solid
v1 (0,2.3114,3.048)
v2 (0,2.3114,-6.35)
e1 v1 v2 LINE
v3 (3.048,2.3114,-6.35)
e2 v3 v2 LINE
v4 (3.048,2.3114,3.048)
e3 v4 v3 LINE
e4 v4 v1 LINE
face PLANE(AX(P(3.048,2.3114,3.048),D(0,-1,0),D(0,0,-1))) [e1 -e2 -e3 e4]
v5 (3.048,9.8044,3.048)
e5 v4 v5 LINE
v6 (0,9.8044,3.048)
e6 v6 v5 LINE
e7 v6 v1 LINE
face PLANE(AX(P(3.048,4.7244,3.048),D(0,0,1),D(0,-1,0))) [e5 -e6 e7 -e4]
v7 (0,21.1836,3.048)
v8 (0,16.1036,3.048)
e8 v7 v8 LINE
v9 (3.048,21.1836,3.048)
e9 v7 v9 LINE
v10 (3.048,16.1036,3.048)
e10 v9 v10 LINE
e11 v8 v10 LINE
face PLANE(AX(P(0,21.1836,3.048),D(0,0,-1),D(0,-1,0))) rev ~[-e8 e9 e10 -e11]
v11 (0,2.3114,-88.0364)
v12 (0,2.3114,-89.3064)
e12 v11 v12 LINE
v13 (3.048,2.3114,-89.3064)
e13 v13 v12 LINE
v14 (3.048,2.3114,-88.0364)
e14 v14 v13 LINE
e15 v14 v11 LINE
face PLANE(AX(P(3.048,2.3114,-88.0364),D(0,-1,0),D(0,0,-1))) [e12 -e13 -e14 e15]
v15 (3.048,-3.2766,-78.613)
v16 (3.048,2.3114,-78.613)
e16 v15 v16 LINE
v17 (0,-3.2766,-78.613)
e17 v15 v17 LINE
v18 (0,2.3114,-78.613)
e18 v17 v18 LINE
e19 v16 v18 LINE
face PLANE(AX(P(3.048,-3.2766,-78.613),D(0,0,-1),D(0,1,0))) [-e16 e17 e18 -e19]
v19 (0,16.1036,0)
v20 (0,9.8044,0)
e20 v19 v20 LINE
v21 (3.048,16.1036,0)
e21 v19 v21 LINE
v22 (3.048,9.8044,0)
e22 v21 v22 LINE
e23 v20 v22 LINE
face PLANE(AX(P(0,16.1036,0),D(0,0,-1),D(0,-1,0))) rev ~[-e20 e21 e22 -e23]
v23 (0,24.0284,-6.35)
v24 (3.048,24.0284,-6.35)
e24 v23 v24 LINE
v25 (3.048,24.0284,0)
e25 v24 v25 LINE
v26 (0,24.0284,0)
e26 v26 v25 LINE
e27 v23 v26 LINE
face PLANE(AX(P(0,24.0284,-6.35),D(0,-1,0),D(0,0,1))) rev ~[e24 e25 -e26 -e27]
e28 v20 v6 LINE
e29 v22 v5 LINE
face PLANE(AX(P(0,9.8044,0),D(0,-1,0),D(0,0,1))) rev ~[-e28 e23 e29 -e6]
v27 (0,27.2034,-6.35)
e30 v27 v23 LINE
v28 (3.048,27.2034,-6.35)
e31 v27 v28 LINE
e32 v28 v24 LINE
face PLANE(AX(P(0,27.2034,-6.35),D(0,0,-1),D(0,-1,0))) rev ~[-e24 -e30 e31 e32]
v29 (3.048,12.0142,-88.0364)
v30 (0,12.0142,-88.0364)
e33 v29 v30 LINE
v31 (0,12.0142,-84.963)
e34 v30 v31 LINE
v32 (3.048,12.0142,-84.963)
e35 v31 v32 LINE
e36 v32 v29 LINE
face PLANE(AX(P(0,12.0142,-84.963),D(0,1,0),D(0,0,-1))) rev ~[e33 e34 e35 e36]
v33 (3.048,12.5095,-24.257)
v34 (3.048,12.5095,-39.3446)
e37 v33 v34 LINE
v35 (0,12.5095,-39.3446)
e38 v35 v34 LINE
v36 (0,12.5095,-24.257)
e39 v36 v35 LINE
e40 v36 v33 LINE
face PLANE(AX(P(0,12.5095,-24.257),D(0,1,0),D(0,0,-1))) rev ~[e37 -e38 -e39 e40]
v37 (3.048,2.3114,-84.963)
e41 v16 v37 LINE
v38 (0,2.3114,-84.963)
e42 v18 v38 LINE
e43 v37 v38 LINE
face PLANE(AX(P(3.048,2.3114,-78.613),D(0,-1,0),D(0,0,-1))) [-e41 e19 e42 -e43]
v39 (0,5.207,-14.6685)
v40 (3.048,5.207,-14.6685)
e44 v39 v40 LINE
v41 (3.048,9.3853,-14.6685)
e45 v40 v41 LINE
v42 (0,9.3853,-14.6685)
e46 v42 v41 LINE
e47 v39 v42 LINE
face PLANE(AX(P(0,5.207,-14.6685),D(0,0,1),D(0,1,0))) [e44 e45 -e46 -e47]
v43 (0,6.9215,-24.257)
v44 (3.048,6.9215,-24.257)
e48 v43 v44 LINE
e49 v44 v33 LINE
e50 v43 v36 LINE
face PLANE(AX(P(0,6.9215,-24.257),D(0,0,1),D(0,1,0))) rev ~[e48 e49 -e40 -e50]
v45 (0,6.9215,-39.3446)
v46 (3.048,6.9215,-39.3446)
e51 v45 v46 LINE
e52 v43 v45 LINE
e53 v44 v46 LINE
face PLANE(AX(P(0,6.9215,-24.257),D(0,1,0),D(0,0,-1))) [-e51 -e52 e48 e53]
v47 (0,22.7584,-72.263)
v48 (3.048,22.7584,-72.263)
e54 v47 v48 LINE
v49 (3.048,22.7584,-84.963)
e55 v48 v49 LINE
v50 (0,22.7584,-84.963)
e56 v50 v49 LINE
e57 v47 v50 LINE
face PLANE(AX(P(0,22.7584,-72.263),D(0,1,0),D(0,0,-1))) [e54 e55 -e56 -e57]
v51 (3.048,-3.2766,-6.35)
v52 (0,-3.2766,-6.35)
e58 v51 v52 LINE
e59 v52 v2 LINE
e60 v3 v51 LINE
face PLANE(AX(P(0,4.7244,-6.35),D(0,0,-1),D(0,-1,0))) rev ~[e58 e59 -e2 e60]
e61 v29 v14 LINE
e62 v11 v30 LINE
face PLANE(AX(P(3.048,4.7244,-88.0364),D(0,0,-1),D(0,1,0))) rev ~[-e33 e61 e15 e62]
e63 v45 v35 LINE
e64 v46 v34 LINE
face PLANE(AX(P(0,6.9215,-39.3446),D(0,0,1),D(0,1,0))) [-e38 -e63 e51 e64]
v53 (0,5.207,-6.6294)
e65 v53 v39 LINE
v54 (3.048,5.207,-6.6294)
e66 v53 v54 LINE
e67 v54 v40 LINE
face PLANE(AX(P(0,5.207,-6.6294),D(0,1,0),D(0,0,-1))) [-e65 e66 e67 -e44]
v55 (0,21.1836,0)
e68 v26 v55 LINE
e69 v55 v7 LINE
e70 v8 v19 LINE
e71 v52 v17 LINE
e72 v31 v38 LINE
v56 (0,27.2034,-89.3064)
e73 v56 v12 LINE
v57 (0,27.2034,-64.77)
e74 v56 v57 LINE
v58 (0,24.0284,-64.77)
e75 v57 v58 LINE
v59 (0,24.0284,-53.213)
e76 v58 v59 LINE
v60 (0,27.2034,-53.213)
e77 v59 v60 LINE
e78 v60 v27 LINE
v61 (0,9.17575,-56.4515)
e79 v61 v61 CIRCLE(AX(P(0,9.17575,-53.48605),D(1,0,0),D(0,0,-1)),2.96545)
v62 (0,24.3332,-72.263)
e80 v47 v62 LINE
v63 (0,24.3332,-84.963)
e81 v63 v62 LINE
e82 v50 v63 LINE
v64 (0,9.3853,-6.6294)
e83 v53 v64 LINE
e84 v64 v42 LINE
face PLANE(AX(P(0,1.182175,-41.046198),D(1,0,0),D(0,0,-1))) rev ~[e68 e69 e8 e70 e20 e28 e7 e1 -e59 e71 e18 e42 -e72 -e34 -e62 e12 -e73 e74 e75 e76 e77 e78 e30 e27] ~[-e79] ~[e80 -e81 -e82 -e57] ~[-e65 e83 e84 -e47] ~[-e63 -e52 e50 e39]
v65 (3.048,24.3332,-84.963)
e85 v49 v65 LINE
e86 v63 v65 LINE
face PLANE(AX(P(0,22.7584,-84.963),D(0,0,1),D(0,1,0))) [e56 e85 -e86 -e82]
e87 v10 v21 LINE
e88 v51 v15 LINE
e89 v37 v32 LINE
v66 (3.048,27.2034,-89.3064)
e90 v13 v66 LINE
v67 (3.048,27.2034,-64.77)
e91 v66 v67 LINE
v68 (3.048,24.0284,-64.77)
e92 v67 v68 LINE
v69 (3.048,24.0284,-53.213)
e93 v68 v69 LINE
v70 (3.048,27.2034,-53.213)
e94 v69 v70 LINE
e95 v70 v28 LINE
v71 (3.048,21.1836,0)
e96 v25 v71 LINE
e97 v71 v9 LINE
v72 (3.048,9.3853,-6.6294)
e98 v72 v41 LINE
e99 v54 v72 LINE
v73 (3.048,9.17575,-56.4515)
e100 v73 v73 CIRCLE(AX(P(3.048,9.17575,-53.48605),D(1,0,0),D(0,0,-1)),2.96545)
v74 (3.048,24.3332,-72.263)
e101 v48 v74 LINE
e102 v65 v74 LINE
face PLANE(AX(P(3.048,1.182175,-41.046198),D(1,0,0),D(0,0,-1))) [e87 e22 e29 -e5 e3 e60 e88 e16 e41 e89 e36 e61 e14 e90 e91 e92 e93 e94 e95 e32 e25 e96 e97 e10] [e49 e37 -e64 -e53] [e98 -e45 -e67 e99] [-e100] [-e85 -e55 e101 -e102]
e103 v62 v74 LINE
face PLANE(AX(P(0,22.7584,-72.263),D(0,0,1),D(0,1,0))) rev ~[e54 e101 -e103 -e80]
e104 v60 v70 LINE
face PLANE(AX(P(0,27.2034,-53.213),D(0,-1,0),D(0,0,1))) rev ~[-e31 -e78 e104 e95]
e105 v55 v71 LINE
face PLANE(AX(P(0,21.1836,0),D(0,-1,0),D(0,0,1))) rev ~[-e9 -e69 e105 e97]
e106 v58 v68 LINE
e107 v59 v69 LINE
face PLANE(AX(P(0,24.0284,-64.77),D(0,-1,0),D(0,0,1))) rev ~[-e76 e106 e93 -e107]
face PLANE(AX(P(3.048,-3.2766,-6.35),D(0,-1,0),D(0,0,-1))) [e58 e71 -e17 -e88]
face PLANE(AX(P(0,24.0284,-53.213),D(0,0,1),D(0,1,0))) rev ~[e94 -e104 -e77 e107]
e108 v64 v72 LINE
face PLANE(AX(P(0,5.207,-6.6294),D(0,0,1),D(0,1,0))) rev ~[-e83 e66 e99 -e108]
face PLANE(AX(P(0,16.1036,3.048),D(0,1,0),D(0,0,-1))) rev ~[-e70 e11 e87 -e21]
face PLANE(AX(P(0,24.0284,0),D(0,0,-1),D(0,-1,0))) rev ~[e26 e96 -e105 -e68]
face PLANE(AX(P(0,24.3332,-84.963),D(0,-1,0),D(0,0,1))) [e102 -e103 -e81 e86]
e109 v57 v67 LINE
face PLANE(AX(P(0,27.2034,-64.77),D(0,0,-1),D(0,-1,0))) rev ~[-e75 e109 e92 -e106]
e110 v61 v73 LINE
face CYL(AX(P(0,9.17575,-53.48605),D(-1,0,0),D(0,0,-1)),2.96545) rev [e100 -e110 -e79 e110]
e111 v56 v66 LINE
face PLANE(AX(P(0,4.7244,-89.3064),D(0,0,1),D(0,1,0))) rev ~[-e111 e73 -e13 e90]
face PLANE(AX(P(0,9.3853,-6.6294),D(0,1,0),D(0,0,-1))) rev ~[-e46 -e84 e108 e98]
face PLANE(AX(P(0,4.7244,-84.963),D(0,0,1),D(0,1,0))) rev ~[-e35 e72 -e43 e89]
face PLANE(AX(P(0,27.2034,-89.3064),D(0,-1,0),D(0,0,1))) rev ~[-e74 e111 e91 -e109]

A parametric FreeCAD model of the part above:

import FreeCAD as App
import Part
import Sketcher
Q = App.Units.Quantity


def add_polygon(sketch, points):
    """Adds a closed chain of lines whose ends are joined by coincident constraints."""
    first, n = sketch.GeometryCount, len(points)
    for a, b in zip(points, points[1:] + points[:1]):
        sketch.addGeometry(Part.LineSegment(App.Vector(*a, 0), App.Vector(*b, 0)), False)
    for i in range(n):
        sketch.addConstraint(Sketcher.Constraint("Coincident", first + i, 2, first + (i + 1) % n, 1))

doc = App.newDocument("Part")
body = doc.addObject("PartDesign::Body", "Body")

sketch1 = doc.addObject("Sketcher::SketchObject", "Sketch")
body.addObject(sketch1)
sketch1.AttachmentSupport = (doc.YZ_Plane, [""])
sketch1.MapMode = "FlatFace"
add_polygon(sketch1, [(24, -6.3), (24, 0), (21.2, 0), (21.2, 3), (16.1, 3), (16.1, 0), (9.8, 0), (9.8, 3), (4.7, 3), (4.7, -6.3), (1.5, -6.3), (1.5, -46.9), (4.7, -46.9), (4.7, -85), (12, -85), (12, -86.8), (4.7, -86.8), (4.7, -89.3), (27.2, -89.3), (27.2, -64.8), (24, -64.8), (24, -53.2), (27.2, -53.2), (27.2, -6.3)])
add_polygon(sketch1, [(5.2, -14.7), (5.2, -6.6), (9.4, -6.6), (9.4, -14.7)])
add_polygon(sketch1, [(6.9, -39.3), (6.9, -24.3), (12.5, -24.3), (12.5, -39.3)])
sketch1.addGeometry(Part.Circle(App.Vector(9.2, -53.5, 0), App.Vector(0, 0, 1), 3), False)
add_polygon(sketch1, [(22.8, -85), (22.8, -72.3), (24.6, -72.3), (24.6, -85)])
sketch1.addConstraint(Sketcher.Constraint("Vertical", 0))
sketch1.addConstraint(Sketcher.Constraint("Horizontal", 1))
sketch1.addConstraint(Sketcher.Constraint("Vertical", 2))
sketch1.addConstraint(Sketcher.Constraint("Horizontal", 3))
sketch1.addConstraint(Sketcher.Constraint("Vertical", 4))
sketch1.addConstraint(Sketcher.Constraint("Horizontal", 5))
sketch1.addConstraint(Sketcher.Constraint("Vertical", 6))
sketch1.addConstraint(Sketcher.Constraint("Horizontal", 7))
sketch1.addConstraint(Sketcher.Constraint("Vertical", 8))
sketch1.addConstraint(Sketcher.Constraint("Horizontal", 9))
sketch1.addConstraint(Sketcher.Constraint("Vertical", 10))
sketch1.addConstraint(Sketcher.Constraint("Horizontal", 11))
sketch1.addConstraint(Sketcher.Constraint("Vertical", 12))
sketch1.addConstraint(Sketcher.Constraint("Horizontal", 13))
sketch1.addConstraint(Sketcher.Constraint("Vertical", 14))
sketch1.addConstraint(Sketcher.Constraint("Horizontal", 15))
sketch1.addConstraint(Sketcher.Constraint("Vertical", 16))
sketch1.addConstraint(Sketcher.Constraint("Horizontal", 17))
sketch1.addConstraint(Sketcher.Constraint("Vertical", 18))
sketch1.addConstraint(Sketcher.Constraint("Horizontal", 19))
sketch1.addConstraint(Sketcher.Constraint("Vertical", 20))
sketch1.addConstraint(Sketcher.Constraint("Horizontal", 21))
sketch1.addConstraint(Sketcher.Constraint("Vertical", 22))
sketch1.addConstraint(Sketcher.Constraint("Horizontal", 23))
sketch1.addConstraint(Sketcher.Constraint("Vertical", 24))
sketch1.addConstraint(Sketcher.Constraint("Horizontal", 25))
sketch1.addConstraint(Sketcher.Constraint("Vertical", 26))
sketch1.addConstraint(Sketcher.Constraint("Horizontal", 27))
sketch1.addConstraint(Sketcher.Constraint("Vertical", 28))
sketch1.addConstraint(Sketcher.Constraint("Horizontal", 29))
sketch1.addConstraint(Sketcher.Constraint("Vertical", 30))
sketch1.addConstraint(Sketcher.Constraint("Horizontal", 31))
sketch1.addConstraint(Sketcher.Constraint("Vertical", 33))
sketch1.addConstraint(Sketcher.Constraint("Horizontal", 34))
sketch1.addConstraint(Sketcher.Constraint("Vertical", 35))
sketch1.addConstraint(Sketcher.Constraint("Horizontal", 36))
sketch1.addConstraint(Sketcher.Constraint("PointOnObject", 0, 2, -1))
sketch1.addConstraint(Sketcher.Constraint("PointOnObject", 4, 2, -1))
sketch1.addConstraint(Sketcher.Constraint("Horizontal", 3, 2, 6, 2))
sketch1.addConstraint(Sketcher.Constraint("Horizontal", 9, 2, 22, 2))
sketch1.addConstraint(Sketcher.Constraint("Horizontal", 13, 2, 35, 2))
sketch1.addConstraint(Sketcher.Constraint("Vertical", 8, 2, 11, 2))
sketch1.addConstraint(Sketcher.Constraint("Vertical", 12, 2, 15, 2))
sketch1.addConstraint(Sketcher.Constraint("Vertical", 0, 2, 19, 2))
sketch1.addConstraint(Sketcher.Constraint("Vertical", 18, 2, 21, 2))
sketch1.addConstraint(Sketcher.Constraint("Equal", 3, 7))
sketch1.addConstraint(Sketcher.Constraint("Equal", 11, 19))
sketch1.addConstraint(Sketcher.Constraint("Equal", 36, 14))
sketch1.addConstraint(Sketcher.Constraint("DistanceX", 3, 2, 3, 1, Q("0.2 in")))
sketch1.addConstraint(Sketcher.Constraint("DistanceY", 12, 2, 12, 1, Q("1.5 in")))
sketch1.addConstraint(Sketcher.Constraint("DistanceY", 16, 2, 16, 1, Q("0.1 in")))
sketch1.addConstraint(Sketcher.Constraint("DistanceY", 33, 1, 33, 2, Q("0.5 in")))
sketch1.addConstraint(Sketcher.Constraint("Diameter", 32, Q("0.2335 in")))
sketch1.addConstraint(Sketcher.Constraint("DistanceX", 29, 1, 29, 2, Q("0.22 in")))
sketch1.addConstraint(Sketcher.Constraint("DistanceY", 0, 1, 0, 2, Q("0.25 in")))
sketch1.addConstraint(Sketcher.Constraint("DistanceY", 2, 1, 2, 2, Q("0.12 in")))
sketch1.addConstraint(Sketcher.Constraint("DistanceX", 1, 2, 1, 1, Q("0.112 in")))
sketch1.addConstraint(Sketcher.Constraint("DistanceX", 5, 2, 5, 1, Q("0.248 in")))
sketch1.addConstraint(Sketcher.Constraint("DistanceX", 9, 2, 9, 1, Q("0.125 in")))
sketch1.addConstraint(Sketcher.Constraint("DistanceX", 13, 1, 13, 2, Q("0.287 in")))
sketch1.addConstraint(Sketcher.Constraint("DistanceX", 34, 1, 34, 2, Q("0.071 in")))
sketch1.addConstraint(Sketcher.Constraint("DistanceY", 10, 2, 10, 1, Q("1.595 in")))
sketch1.addConstraint(Sketcher.Constraint("DistanceY", 18, 1, 18, 2, Q("0.966 in")))
sketch1.addConstraint(Sketcher.Constraint("DistanceY", 20, 1, 20, 2, Q("0.455 in")))
sketch1.addConstraint(Sketcher.Constraint("DistanceY", 28, 1, 28, 2, Q("0.594 in")))
sketch1.addConstraint(Sketcher.Constraint("DistanceX", 33, 2, 19, 2, Q("0.05 in")))
sketch1.addConstraint(Sketcher.Constraint("DistanceX", 25, 1, 25, 2, Q("0.1645 in")))
sketch1.addConstraint(Sketcher.Constraint("DistanceY", 24, 1, 24, 2, Q("0.3165 in")))
sketch1.addConstraint(Sketcher.Constraint("DistanceX", -1, 1, 0, 2, Q("0.946 in")))
sketch1.addConstraint(Sketcher.Constraint("DistanceX", -1, 1, 24, 2, Q("0.205 in")))
sketch1.addConstraint(Sketcher.Constraint("DistanceY", 24, 2, -1, 1, Q("0.261 in")))
sketch1.addConstraint(Sketcher.Constraint("DistanceY", 28, 2, -1, 1, Q("0.955 in")))
sketch1.addConstraint(Sketcher.Constraint("DistanceX", 28, 2, 26, 2, Q("0.097 in")))
sketch1.addConstraint(Sketcher.Constraint("DistanceX", -1, 1, 32, 3, Q("9.17575 mm")))
sketch1.addConstraint(Sketcher.Constraint("DistanceY", 32, 3, -1, 1, Q("53.48605 mm")))
pad1 = doc.addObject("PartDesign::Pad", "Pad")
body.addObject(pad1)
pad1.Profile = sketch1
pad1.Length = Q("0.12 in")

sketch2 = doc.addObject("Sketcher::SketchObject", "Sketch001")
body.addObject(sketch2)
sketch2.AttachmentSupport = (doc.YZ_Plane, [""])
sketch2.MapMode = "FlatFace"
add_polygon(sketch2, [(24.56, -84.96), (24.33, -84.96), (24.33, -72.26), (24.56, -72.26)])
sketch2.addConstraint(Sketcher.Constraint("Horizontal", 0))
sketch2.addConstraint(Sketcher.Constraint("Vertical", 1))
sketch2.addConstraint(Sketcher.Constraint("Horizontal", 2))
sketch2.addConstraint(Sketcher.Constraint("Vertical", 3))
sketch2.addConstraint(Sketcher.Constraint("DistanceY", 1, 1, 1, 2, Q("0.5 in")))
sketch2.addConstraint(Sketcher.Constraint("DistanceX", 0, 2, 0, 1, Q("0.009 in")))
sketch2.addConstraint(Sketcher.Constraint("DistanceX", -1, 1, 0, 2, Q("0.958 in")))
sketch2.addConstraint(Sketcher.Constraint("DistanceY", 0, 2, -1, 1, Q("3.345 in")))
pad2 = doc.addObject("PartDesign::Pad", "Pad001")
body.addObject(pad2)
pad2.Profile = sketch2
pad2.Length = Q("0.12 in")

sketch3 = doc.addObject("Sketcher::SketchObject", "Sketch002")
body.addObject(sketch3)
sketch3.AttachmentSupport = (doc.YZ_Plane, [""])
sketch3.MapMode = "FlatFace"
sketch3.AttachmentOffset = App.Placement(App.Vector(0, 0, 0.12 * 25.4), App.Rotation())
add_polygon(sketch3, [(12, -85), (4.7, -85), (4.7, -88), (12, -88)])
sketch3.addConstraint(Sketcher.Constraint("Horizontal", 0))
sketch3.addConstraint(Sketcher.Constraint("Vertical", 1))
sketch3.addConstraint(Sketcher.Constraint("Horizontal", 2))
sketch3.addConstraint(Sketcher.Constraint("Vertical", 3))
sketch3.addConstraint(Sketcher.Constraint("DistanceX", 0, 2, 0, 1, Q("0.287 in")))
sketch3.addConstraint(Sketcher.Constraint("DistanceY", 1, 2, 1, 1, Q("0.121 in")))
sketch3.addConstraint(Sketcher.Constraint("DistanceX", -1, 1, 0, 2, Q("0.186 in")))
sketch3.addConstraint(Sketcher.Constraint("DistanceY", 0, 2, -1, 1, Q("3.345 in")))
pocket1 = doc.addObject("PartDesign::Pocket", "Pocket")
body.addObject(pocket1)
pocket1.Profile = sketch3
pocket1.Type = "ThroughAll"

sketch4 = doc.addObject("Sketcher::SketchObject", "Sketch003")
body.addObject(sketch4)
sketch4.AttachmentSupport = (doc.YZ_Plane, [""])
sketch4.MapMode = "FlatFace"
sketch4.AttachmentOffset = App.Placement(App.Vector(0, 0, 0.12 * 25.4), App.Rotation())
add_polygon(sketch4, [(4.7, 3), (2.3, 3), (2.3, -6.3), (-3.3, -6.3), (-3.3, -78.6), (2.3, -78.6), (2.3, -85), (4.7, -85)])
add_polygon(sketch4, [(4.7, -88), (2.3, -88), (2.3, -89.3), (4.7, -89.3)])
sketch4.addConstraint(Sketcher.Constraint("Horizontal", 0))
sketch4.addConstraint(Sketcher.Constraint("Vertical", 1))
sketch4.addConstraint(Sketcher.Constraint("Horizontal", 2))
sketch4.addConstraint(Sketcher.Constraint("Vertical", 3))
sketch4.addConstraint(Sketcher.Constraint("Horizontal", 4))
sketch4.addConstraint(Sketcher.Constraint("Vertical", 5))
sketch4.addConstraint(Sketcher.Constraint("Horizontal", 6))
sketch4.addConstraint(Sketcher.Constraint("Vertical", 7))
sketch4.addConstraint(Sketcher.Constraint("Horizontal", 8))
sketch4.addConstraint(Sketcher.Constraint("Vertical", 9))
sketch4.addConstraint(Sketcher.Constraint("Horizontal", 10))
sketch4.addConstraint(Sketcher.Constraint("Vertical", 11))
sketch4.addConstraint(Sketcher.Constraint("Vertical", 1, 2, 4, 2))
sketch4.addConstraint(Sketcher.Constraint("Vertical", 5, 2, 8, 2))
sketch4.addConstraint(Sketcher.Constraint("Vertical", 7, 2, 10, 2))
sketch4.addConstraint(Sketcher.Constraint("DistanceX", 2, 2, 2, 1, Q("0.22 in")))
sketch4.addConstraint(Sketcher.Constraint("DistanceY", 1, 2, 1, 1, Q("0.37 in")))
sketch4.addConstraint(Sketcher.Constraint("DistanceY", 5, 2, 5, 1, Q("0.25 in")))
sketch4.addConstraint(Sketcher.Constraint("DistanceY", 9, 2, 9, 1, Q("0.05 in")))
sketch4.addConstraint(Sketcher.Constraint("DistanceX", 0, 2, 0, 1, Q("0.095 in")))
sketch4.addConstraint(Sketcher.Constraint("DistanceY", 3, 2, 3, 1, Q("2.845 in")))
sketch4.addConstraint(Sketcher.Constraint("DistanceY", -1, 1, 0, 2, Q("0.12 in")))
sketch4.addConstraint(Sketcher.Constraint("DistanceX", -1, 1, 0, 2, Q("0.091 in")))
sketch4.addConstraint(Sketcher.Constraint("DistanceY", 8, 2, -1, 1, Q("3.466 in")))
pad3 = doc.addObject("PartDesign::Pad", "Pad002")
body.addObject(pad3)
pad3.Profile = sketch4
pad3.Length = Q("0.12 in")
pad3.Reversed = True

doc.recompute()
